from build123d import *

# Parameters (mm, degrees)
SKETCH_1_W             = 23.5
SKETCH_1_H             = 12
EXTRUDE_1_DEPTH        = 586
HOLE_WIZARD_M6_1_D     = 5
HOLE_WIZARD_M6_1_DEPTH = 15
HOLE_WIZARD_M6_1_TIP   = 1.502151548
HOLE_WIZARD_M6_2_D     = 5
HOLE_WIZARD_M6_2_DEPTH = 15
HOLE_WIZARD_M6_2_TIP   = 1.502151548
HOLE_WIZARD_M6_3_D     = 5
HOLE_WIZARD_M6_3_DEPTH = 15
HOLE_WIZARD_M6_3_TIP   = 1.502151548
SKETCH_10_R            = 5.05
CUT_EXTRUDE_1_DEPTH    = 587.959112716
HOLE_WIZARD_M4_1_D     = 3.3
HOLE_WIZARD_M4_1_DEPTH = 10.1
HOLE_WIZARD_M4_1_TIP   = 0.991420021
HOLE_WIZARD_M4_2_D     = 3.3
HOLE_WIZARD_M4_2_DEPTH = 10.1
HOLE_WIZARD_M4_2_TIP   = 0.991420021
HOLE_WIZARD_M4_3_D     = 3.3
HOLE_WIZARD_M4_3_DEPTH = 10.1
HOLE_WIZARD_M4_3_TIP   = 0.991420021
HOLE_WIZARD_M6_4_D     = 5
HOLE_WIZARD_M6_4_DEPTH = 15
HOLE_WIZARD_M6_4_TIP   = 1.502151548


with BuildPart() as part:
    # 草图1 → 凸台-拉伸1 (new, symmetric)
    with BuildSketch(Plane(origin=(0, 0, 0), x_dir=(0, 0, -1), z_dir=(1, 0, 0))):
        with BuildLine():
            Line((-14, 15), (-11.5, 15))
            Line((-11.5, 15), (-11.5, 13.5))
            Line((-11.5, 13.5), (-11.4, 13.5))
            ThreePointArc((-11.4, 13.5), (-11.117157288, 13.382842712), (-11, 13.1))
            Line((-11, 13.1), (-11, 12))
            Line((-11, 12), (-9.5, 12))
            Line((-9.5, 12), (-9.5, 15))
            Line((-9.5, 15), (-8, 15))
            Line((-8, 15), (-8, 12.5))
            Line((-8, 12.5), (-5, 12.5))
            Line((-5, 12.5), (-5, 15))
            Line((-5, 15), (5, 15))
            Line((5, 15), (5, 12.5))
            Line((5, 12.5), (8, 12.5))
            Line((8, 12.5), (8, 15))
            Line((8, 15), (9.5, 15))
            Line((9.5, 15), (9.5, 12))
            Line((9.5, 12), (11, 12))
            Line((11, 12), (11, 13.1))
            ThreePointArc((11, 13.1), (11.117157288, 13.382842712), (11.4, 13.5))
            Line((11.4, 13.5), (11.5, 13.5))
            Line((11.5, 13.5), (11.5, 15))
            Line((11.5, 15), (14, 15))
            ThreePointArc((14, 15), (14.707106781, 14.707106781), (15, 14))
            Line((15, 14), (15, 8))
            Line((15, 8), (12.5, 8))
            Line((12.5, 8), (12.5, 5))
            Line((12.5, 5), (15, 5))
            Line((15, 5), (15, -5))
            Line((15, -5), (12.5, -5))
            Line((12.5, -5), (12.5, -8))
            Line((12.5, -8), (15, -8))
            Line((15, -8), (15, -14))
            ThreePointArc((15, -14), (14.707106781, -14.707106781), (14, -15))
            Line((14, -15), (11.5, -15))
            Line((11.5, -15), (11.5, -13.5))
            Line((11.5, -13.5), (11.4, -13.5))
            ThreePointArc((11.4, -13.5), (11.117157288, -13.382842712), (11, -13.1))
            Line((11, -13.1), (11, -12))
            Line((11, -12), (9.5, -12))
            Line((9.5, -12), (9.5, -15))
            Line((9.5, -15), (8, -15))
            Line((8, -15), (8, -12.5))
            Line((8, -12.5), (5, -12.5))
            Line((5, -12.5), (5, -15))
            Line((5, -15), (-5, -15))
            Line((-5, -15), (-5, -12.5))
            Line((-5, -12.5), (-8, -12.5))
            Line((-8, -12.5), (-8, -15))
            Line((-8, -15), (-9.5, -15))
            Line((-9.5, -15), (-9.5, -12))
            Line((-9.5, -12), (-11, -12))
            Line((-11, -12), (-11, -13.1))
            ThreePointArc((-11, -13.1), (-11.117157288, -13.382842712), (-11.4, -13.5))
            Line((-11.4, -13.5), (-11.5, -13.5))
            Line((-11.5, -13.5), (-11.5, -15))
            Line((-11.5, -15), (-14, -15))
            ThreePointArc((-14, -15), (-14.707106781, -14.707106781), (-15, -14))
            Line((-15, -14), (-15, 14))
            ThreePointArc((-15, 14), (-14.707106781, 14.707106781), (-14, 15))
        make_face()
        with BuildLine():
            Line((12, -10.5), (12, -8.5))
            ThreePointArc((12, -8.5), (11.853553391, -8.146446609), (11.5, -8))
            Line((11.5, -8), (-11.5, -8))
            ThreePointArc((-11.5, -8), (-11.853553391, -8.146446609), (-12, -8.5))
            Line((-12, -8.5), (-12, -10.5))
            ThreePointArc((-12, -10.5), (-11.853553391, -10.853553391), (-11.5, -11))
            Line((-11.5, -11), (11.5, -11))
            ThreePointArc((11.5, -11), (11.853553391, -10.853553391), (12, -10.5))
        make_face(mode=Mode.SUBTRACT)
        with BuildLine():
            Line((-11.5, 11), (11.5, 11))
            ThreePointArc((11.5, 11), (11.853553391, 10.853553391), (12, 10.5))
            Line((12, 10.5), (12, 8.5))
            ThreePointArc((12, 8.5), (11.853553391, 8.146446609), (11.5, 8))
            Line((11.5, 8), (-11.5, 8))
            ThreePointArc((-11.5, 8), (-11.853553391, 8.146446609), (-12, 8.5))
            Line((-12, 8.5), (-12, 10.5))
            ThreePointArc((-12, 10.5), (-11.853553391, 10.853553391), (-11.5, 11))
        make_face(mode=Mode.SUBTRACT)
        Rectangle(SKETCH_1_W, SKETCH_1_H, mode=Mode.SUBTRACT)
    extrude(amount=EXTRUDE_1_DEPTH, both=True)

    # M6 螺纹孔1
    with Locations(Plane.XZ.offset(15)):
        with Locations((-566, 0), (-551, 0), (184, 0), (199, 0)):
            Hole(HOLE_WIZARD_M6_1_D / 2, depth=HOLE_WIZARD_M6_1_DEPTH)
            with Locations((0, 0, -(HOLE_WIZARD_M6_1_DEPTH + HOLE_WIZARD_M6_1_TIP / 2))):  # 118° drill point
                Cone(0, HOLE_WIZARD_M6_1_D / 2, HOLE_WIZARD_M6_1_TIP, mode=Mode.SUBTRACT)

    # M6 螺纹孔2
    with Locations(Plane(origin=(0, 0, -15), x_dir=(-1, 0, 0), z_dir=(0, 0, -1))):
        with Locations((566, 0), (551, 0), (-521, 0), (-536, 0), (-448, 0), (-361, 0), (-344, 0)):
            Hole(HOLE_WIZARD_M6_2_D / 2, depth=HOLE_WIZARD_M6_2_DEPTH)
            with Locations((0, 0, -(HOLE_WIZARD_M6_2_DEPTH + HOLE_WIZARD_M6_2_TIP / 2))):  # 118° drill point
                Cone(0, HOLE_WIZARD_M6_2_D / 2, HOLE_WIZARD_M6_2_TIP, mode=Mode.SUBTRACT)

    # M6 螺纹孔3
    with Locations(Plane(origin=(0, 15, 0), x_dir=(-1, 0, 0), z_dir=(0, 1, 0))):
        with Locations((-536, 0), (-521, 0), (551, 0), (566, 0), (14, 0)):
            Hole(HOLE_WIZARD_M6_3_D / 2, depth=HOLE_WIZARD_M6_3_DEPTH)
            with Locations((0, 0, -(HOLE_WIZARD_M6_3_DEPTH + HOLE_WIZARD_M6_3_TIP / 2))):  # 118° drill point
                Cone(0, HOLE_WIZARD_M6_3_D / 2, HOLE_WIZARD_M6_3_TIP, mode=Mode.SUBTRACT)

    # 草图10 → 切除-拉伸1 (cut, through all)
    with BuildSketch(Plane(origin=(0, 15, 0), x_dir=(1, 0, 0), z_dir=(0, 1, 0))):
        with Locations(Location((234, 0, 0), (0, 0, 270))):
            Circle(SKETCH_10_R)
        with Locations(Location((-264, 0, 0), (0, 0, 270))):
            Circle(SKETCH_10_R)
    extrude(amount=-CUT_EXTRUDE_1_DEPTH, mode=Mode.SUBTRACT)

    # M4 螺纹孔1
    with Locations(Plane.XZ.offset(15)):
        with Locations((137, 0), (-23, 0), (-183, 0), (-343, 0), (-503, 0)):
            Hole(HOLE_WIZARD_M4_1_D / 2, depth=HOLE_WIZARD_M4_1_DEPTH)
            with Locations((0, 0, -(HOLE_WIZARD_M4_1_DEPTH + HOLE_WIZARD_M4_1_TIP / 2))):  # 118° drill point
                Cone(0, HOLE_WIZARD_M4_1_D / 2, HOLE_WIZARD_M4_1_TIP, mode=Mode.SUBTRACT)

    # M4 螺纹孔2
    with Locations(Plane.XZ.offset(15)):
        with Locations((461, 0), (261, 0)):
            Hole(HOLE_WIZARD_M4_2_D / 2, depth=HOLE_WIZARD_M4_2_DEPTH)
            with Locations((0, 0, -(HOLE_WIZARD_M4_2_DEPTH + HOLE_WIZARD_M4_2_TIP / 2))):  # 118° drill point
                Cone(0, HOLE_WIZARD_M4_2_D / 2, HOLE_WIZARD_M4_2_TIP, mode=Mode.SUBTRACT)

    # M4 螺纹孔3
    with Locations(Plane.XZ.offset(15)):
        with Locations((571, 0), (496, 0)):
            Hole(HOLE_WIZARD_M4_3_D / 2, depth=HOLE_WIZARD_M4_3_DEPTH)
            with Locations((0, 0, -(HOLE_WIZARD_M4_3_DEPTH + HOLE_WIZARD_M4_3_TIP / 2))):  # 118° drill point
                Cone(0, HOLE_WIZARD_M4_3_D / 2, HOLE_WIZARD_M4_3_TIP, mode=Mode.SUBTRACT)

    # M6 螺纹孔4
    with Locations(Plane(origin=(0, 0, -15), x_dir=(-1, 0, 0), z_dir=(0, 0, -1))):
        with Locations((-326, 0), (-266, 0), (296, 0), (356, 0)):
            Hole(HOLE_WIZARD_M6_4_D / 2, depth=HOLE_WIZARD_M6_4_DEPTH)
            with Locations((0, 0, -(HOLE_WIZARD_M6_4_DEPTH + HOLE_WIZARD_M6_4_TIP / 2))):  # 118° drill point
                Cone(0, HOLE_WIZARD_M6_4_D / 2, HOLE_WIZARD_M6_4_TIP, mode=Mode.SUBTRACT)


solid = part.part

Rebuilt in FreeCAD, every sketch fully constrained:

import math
import FreeCAD as App
import Part
import Sketcher
from FreeCAD import Vector
Q = App.Units.Quantity


def add_polygon(sketch, points):
    """Adds a closed chain of lines whose ends are joined by coincident constraints."""
    first, n = sketch.GeometryCount, len(points)
    for a, b in zip(points, points[1:] + points[:1]):
        sketch.addGeometry(Part.LineSegment(App.Vector(*a, 0), App.Vector(*b, 0)), False)
    for i in range(n):
        sketch.addConstraint(Sketcher.Constraint("Coincident", first + i, 2, first + (i + 1) % n, 1))

doc = App.newDocument("Part")
body = doc.addObject("PartDesign::Body", "Body")

# Sketch on YZ plane
sketch1 = doc.addObject("Sketcher::SketchObject", "Sketch")
body.addObject(sketch1)
sketch1.AttachmentSupport = (doc.YZ_Plane, [""])
sketch1.MapMode = "FlatFace"
sketch1.addGeometry(Part.LineSegment(Vector(15, 11.5, 0), Vector(15, 14, 0)), False)  # 0
sketch1.addGeometry(Part.ArcOfCircle(Part.Circle(Vector(14, 14, 0), Vector(0, 0, 1), 1), math.radians(0), math.radians(90)), False)  # 1
sketch1.addGeometry(Part.LineSegment(Vector(14, 15, 0), Vector(-14, 15, 0)), False)  # 2
sketch1.addGeometry(Part.ArcOfCircle(Part.Circle(Vector(-14, 14, 0), Vector(0, 0, 1), 1), math.radians(90), math.radians(180)), False)  # 3
sketch1.addGeometry(Part.LineSegment(Vector(-15, 14, 0), Vector(-15, 11.5, 0)), False)  # 4
sketch1.addGeometry(Part.LineSegment(Vector(-15, 11.5, 0), Vector(-13.5, 11.5, 0)), False)  # 5
sketch1.addGeometry(Part.LineSegment(Vector(-13.5, 11.5, 0), Vector(-13.5, 11.4, 0)), False)  # 6
sketch1.addGeometry(Part.ArcOfCircle(Part.Circle(Vector(-13.1, 11.4, 0), Vector(0, 0, 1), 0.4), math.radians(-180), math.radians(-90)), False)  # 7
sketch1.addGeometry(Part.LineSegment(Vector(-13.1, 11, 0), Vector(-12, 11, 0)), False)  # 8
sketch1.addGeometry(Part.LineSegment(Vector(-12, 11, 0), Vector(-12, 9.5, 0)), False)  # 9
sketch1.addGeometry(Part.LineSegment(Vector(-12, 9.5, 0), Vector(-15, 9.5, 0)), False)  # 10
sketch1.addGeometry(Part.LineSegment(Vector(-15, 9.5, 0), Vector(-15, 8, 0)), False)  # 11
sketch1.addGeometry(Part.LineSegment(Vector(-15, 8, 0), Vector(-12.5, 8, 0)), False)  # 12
sketch1.addGeometry(Part.LineSegment(Vector(-12.5, 8, 0), Vector(-12.5, 5, 0)), False)  # 13
sketch1.addGeometry(Part.LineSegment(Vector(-12.5, 5, 0), Vector(-15, 5, 0)), False)  # 14
sketch1.addGeometry(Part.LineSegment(Vector(-15, 5, 0), Vector(-15, -5, 0)), False)  # 15
sketch1.addGeometry(Part.LineSegment(Vector(-15, -5, 0), Vector(-12.5, -5, 0)), False)  # 16
sketch1.addGeometry(Part.LineSegment(Vector(-12.5, -5, 0), Vector(-12.5, -8, 0)), False)  # 17
sketch1.addGeometry(Part.LineSegment(Vector(-12.5, -8, 0), Vector(-15, -8, 0)), False)  # 18
sketch1.addGeometry(Part.LineSegment(Vector(-15, -8, 0), Vector(-15, -9.5, 0)), False)  # 19
sketch1.addGeometry(Part.LineSegment(Vector(-15, -9.5, 0), Vector(-12, -9.5, 0)), False)  # 20
sketch1.addGeometry(Part.LineSegment(Vector(-12, -9.5, 0), Vector(-12, -11, 0)), False)  # 21
sketch1.addGeometry(Part.LineSegment(Vector(-12, -11, 0), Vector(-13.1, -11, 0)), False)  # 22
sketch1.addGeometry(Part.ArcOfCircle(Part.Circle(Vector(-13.1, -11.4, 0), Vector(0, 0, 1), 0.4), math.radians(90), math.radians(180)), False)  # 23
sketch1.addGeometry(Part.LineSegment(Vector(-13.5, -11.4, 0), Vector(-13.5, -11.5, 0)), False)  # 24
sketch1.addGeometry(Part.LineSegment(Vector(-13.5, -11.5, 0), Vector(-15, -11.5, 0)), False)  # 25
sketch1.addGeometry(Part.LineSegment(Vector(-15, -11.5, 0), Vector(-15, -14, 0)), False)  # 26
sketch1.addGeometry(Part.ArcOfCircle(Part.Circle(Vector(-14, -14, 0), Vector(0, 0, 1), 1), math.radians(-180), math.radians(-90)), False)  # 27
sketch1.addGeometry(Part.LineSegment(Vector(-14, -15, 0), Vector(-8, -15, 0)), False)  # 28
sketch1.addGeometry(Part.LineSegment(Vector(-8, -15, 0), Vector(-8, -12.5, 0)), False)  # 29
sketch1.addGeometry(Part.LineSegment(Vector(-8, -12.5, 0), Vector(-5, -12.5, 0)), False)  # 30
sketch1.addGeometry(Part.LineSegment(Vector(-5, -12.5, 0), Vector(-5, -15, 0)), False)  # 31
sketch1.addGeometry(Part.LineSegment(Vector(-5, -15, 0), Vector(5, -15, 0)), False)  # 32
sketch1.addGeometry(Part.LineSegment(Vector(5, -15, 0), Vector(5, -12.5, 0)), False)  # 33
sketch1.addGeometry(Part.LineSegment(Vector(5, -12.5, 0), Vector(8, -12.5, 0)), False)  # 34
sketch1.addGeometry(Part.LineSegment(Vector(8, -12.5, 0), Vector(8, -15, 0)), False)  # 35
sketch1.addGeometry(Part.LineSegment(Vector(8, -15, 0), Vector(14, -15, 0)), False)  # 36
sketch1.addGeometry(Part.ArcOfCircle(Part.Circle(Vector(14, -14, 0), Vector(0, 0, 1), 1), math.radians(-90), math.radians(0)), False)  # 37
sketch1.addGeometry(Part.LineSegment(Vector(15, -14, 0), Vector(15, -11.5, 0)), False)  # 38
sketch1.addGeometry(Part.LineSegment(Vector(15, -11.5, 0), Vector(13.5, -11.5, 0)), False)  # 39
sketch1.addGeometry(Part.LineSegment(Vector(13.5, -11.5, 0), Vector(13.5, -11.4, 0)), False)  # 40
sketch1.addGeometry(Part.ArcOfCircle(Part.Circle(Vector(13.1, -11.4, 0), Vector(0, 0, 1), 0.4), math.radians(0), math.radians(90)), False)  # 41
sketch1.addGeometry(Part.LineSegment(Vector(13.1, -11, 0), Vector(12, -11, 0)), False)  # 42
sketch1.addGeometry(Part.LineSegment(Vector(12, -11, 0), Vector(12, -9.5, 0)), False)  # 43
sketch1.addGeometry(Part.LineSegment(Vector(12, -9.5, 0), Vector(15, -9.5, 0)), False)  # 44
sketch1.addGeometry(Part.LineSegment(Vector(15, -9.5, 0), Vector(15, -8, 0)), False)  # 45
sketch1.addGeometry(Part.LineSegment(Vector(15, -8, 0), Vector(12.5, -8, 0)), False)  # 46
sketch1.addGeometry(Part.LineSegment(Vector(12.5, -8, 0), Vector(12.5, -5, 0)), False)  # 47
sketch1.addGeometry(Part.LineSegment(Vector(12.5, -5, 0), Vector(15, -5, 0)), False)  # 48
sketch1.addGeometry(Part.LineSegment(Vector(15, -5, 0), Vector(15, 5, 0)), False)  # 49
sketch1.addGeometry(Part.LineSegment(Vector(15, 5, 0), Vector(12.5, 5, 0)), False)  # 50
sketch1.addGeometry(Part.LineSegment(Vector(12.5, 5, 0), Vector(12.5, 8, 0)), False)  # 51
sketch1.addGeometry(Part.LineSegment(Vector(12.5, 8, 0), Vector(15, 8, 0)), False)  # 52
sketch1.addGeometry(Part.LineSegment(Vector(15, 8, 0), Vector(15, 9.5, 0)), False)  # 53
sketch1.addGeometry(Part.LineSegment(Vector(15, 9.5, 0), Vector(12, 9.5, 0)), False)  # 54
sketch1.addGeometry(Part.LineSegment(Vector(12, 9.5, 0), Vector(12, 11, 0)), False)  # 55
sketch1.addGeometry(Part.LineSegment(Vector(12, 11, 0), Vector(13.1, 11, 0)), False)  # 56
sketch1.addGeometry(Part.ArcOfCircle(Part.Circle(Vector(13.1, 11.4, 0), Vector(0, 0, 1), 0.4), math.radians(-90), math.radians(0)), False)  # 57
sketch1.addGeometry(Part.LineSegment(Vector(13.5, 11.4, 0), Vector(13.5, 11.5, 0)), False)  # 58
sketch1.addGeometry(Part.LineSegment(Vector(13.5, 11.5, 0), Vector(15, 11.5, 0)), False)  # 59
sketch1.addGeometry(Part.ArcOfCircle(Part.Circle(Vector(-10.5, -11.5, 0), Vector(0, 0, 1), 0.5), math.radians(180), math.radians(270)), False)  # 60
sketch1.addGeometry(Part.LineSegment(Vector(-11, -11.5, 0), Vector(-11, 11.5, 0)), False)  # 61
sketch1.addGeometry(Part.ArcOfCircle(Part.Circle(Vector(-10.5, 11.5, 0), Vector(0, 0, 1), 0.5), math.radians(90), math.radians(180)), False)  # 62
sketch1.addGeometry(Part.LineSegment(Vector(-10.5, 12, 0), Vector(-8.5, 12, 0)), False)  # 63
sketch1.addGeometry(Part.ArcOfCircle(Part.Circle(Vector(-8.5, 11.5, 0), Vector(0, 0, 1), 0.5), math.radians(0), math.radians(90)), False)  # 64
sketch1.addGeometry(Part.LineSegment(Vector(-8, 11.5, 0), Vector(-8, -11.5, 0)), False)  # 65
sketch1.addGeometry(Part.ArcOfCircle(Part.Circle(Vector(-8.5, -11.5, 0), Vector(0, 0, 1), 0.5), math.radians(-90), math.radians(0)), False)  # 66
sketch1.addGeometry(Part.LineSegment(Vector(-8.5, -12, 0), Vector(-10.5, -12, 0)), False)  # 67
add_polygon(sketch1, [(-6, 11.75), (6, 11.75), (6, -11.75), (-6, -11.75)])  # lines 68-71
sketch1.addGeometry(Part.LineSegment(Vector(11, 11.5, 0), Vector(11, -11.5, 0)), False)  # 72
sketch1.addGeometry(Part.ArcOfCircle(Part.Circle(Vector(10.5, -11.5, 0), Vector(0, 0, 1), 0.5), math.radians(-90), math.radians(0)), False)  # 73
sketch1.addGeometry(Part.LineSegment(Vector(10.5, -12, 0), Vector(8.5, -12, 0)), False)  # 74
sketch1.addGeometry(Part.ArcOfCircle(Part.Circle(Vector(8.5, -11.5, 0), Vector(0, 0, 1), 0.5), math.radians(180), math.radians(270)), False)  # 75
sketch1.addGeometry(Part.LineSegment(Vector(8, -11.5, 0), Vector(8, 11.5, 0)), False)  # 76
sketch1.addGeometry(Part.ArcOfCircle(Part.Circle(Vector(8.5, 11.5, 0), Vector(0, 0, 1), 0.5), math.radians(90), math.radians(180)), False)  # 77
sketch1.addGeometry(Part.LineSegment(Vector(8.5, 12, 0), Vector(10.5, 12, 0)), False)  # 78
sketch1.addGeometry(Part.ArcOfCircle(Part.Circle(Vector(10.5, 11.5, 0), Vector(0, 0, 1), 0.5), math.radians(0), math.radians(90)), False)  # 79
sketch1.addConstraint([
    Sketcher.Constraint("Tangent", 0, 2, 1, 1),
    Sketcher.Constraint("Tangent", 1, 2, 2, 1),
    Sketcher.Constraint("Tangent", 2, 2, 3, 1),
    Sketcher.Constraint("Tangent", 3, 2, 4, 1),
    Sketcher.Constraint("Coincident", 4, 2, 5, 1),
    Sketcher.Constraint("Coincident", 5, 2, 6, 1),
    Sketcher.Constraint("Tangent", 6, 2, 7, 1),
    Sketcher.Constraint("Tangent", 7, 2, 8, 1),
    Sketcher.Constraint("Coincident", 8, 2, 9, 1),
    Sketcher.Constraint("Coincident", 9, 2, 10, 1),
    Sketcher.Constraint("Coincident", 10, 2, 11, 1),
    Sketcher.Constraint("Coincident", 11, 2, 12, 1),
    Sketcher.Constraint("Coincident", 12, 2, 13, 1),
    Sketcher.Constraint("Coincident", 13, 2, 14, 1),
    Sketcher.Constraint("Coincident", 14, 2, 15, 1),
    Sketcher.Constraint("Coincident", 15, 2, 16, 1),
    Sketcher.Constraint("Coincident", 16, 2, 17, 1),
    Sketcher.Constraint("Coincident", 17, 2, 18, 1),
    Sketcher.Constraint("Coincident", 18, 2, 19, 1),
    Sketcher.Constraint("Coincident", 19, 2, 20, 1),
    Sketcher.Constraint("Coincident", 20, 2, 21, 1),
    Sketcher.Constraint("Coincident", 21, 2, 22, 1),
    Sketcher.Constraint("Tangent", 22, 2, 23, 1),
    Sketcher.Constraint("Tangent", 23, 2, 24, 1),
    Sketcher.Constraint("Coincident", 24, 2, 25, 1),
    Sketcher.Constraint("Coincident", 25, 2, 26, 1),
    Sketcher.Constraint("Tangent", 26, 2, 27, 1),
    Sketcher.Constraint("Tangent", 27, 2, 28, 1),
    Sketcher.Constraint("Coincident", 28, 2, 29, 1),
    Sketcher.Constraint("Coincident", 29, 2, 30, 1),
    Sketcher.Constraint("Coincident", 30, 2, 31, 1),
    Sketcher.Constraint("Coincident", 31, 2, 32, 1),
    Sketcher.Constraint("Coincident", 32, 2, 33, 1),
    Sketcher.Constraint("Coincident", 33, 2, 34, 1),
    Sketcher.Constraint("Coincident", 34, 2, 35, 1),
    Sketcher.Constraint("Coincident", 35, 2, 36, 1),
    Sketcher.Constraint("Tangent", 36, 2, 37, 1),
    Sketcher.Constraint("Tangent", 37, 2, 38, 1),
    Sketcher.Constraint("Coincident", 38, 2, 39, 1),
    Sketcher.Constraint("Coincident", 39, 2, 40, 1),
    Sketcher.Constraint("Tangent", 40, 2, 41, 1),
    Sketcher.Constraint("Tangent", 41, 2, 42, 1),
    Sketcher.Constraint("Coincident", 42, 2, 43, 1),
    Sketcher.Constraint("Coincident", 43, 2, 44, 1),
    Sketcher.Constraint("Coincident", 44, 2, 45, 1),
    Sketcher.Constraint("Coincident", 45, 2, 46, 1),
    Sketcher.Constraint("Coincident", 46, 2, 47, 1),
    Sketcher.Constraint("Coincident", 47, 2, 48, 1),
    Sketcher.Constraint("Coincident", 48, 2, 49, 1),
    Sketcher.Constraint("Coincident", 49, 2, 50, 1),
    Sketcher.Constraint("Coincident", 50, 2, 51, 1),
    Sketcher.Constraint("Coincident", 51, 2, 52, 1),
    Sketcher.Constraint("Coincident", 52, 2, 53, 1),
    Sketcher.Constraint("Coincident", 53, 2, 54, 1),
    Sketcher.Constraint("Coincident", 54, 2, 55, 1),
    Sketcher.Constraint("Coincident", 55, 2, 56, 1),
    Sketcher.Constraint("Tangent", 56, 2, 57, 1),
    Sketcher.Constraint("Tangent", 57, 2, 58, 1),
    Sketcher.Constraint("Coincident", 58, 2, 59, 1),
    Sketcher.Constraint("Coincident", 59, 2, 0, 1),
    Sketcher.Constraint("Tangent", 60, 1, 61, 1),
    Sketcher.Constraint("Tangent", 61, 2, 62, 2),
    Sketcher.Constraint("Tangent", 62, 1, 63, 1),
    Sketcher.Constraint("Tangent", 63, 2, 64, 2),
    Sketcher.Constraint("Tangent", 64, 1, 65, 1),
    Sketcher.Constraint("Tangent", 65, 2, 66, 2),
    Sketcher.Constraint("Tangent", 66, 1, 67, 1),
    Sketcher.Constraint("Tangent", 67, 2, 60, 2),
    Sketcher.Constraint("Tangent", 72, 2, 73, 2),
    Sketcher.Constraint("Tangent", 73, 1, 74, 1),
    Sketcher.Constraint("Tangent", 74, 2, 75, 2),
    Sketcher.Constraint("Tangent", 75, 1, 76, 1),
    Sketcher.Constraint("Tangent", 76, 2, 77, 2),
    Sketcher.Constraint("Tangent", 77, 1, 78, 1),
    Sketcher.Constraint("Tangent", 78, 2, 79, 2),
    Sketcher.Constraint("Tangent", 79, 1, 72, 1),
    Sketcher.Constraint("Vertical", 0),
    Sketcher.Constraint("Horizontal", 2),
    Sketcher.Constraint("Vertical", 4),
    Sketcher.Constraint("Horizontal", 5),
    Sketcher.Constraint("Vertical", 6),
    Sketcher.Constraint("Horizontal", 8),
    Sketcher.Constraint("Vertical", 9),
    Sketcher.Constraint("Horizontal", 10),
    Sketcher.Constraint("Vertical", 11),
    Sketcher.Constraint("Horizontal", 12),
    Sketcher.Constraint("Vertical", 13),
    Sketcher.Constraint("Horizontal", 14),
    Sketcher.Constraint("Vertical", 15),
    Sketcher.Constraint("Horizontal", 16),
    Sketcher.Constraint("Vertical", 17),
    Sketcher.Constraint("Horizontal", 18),
    Sketcher.Constraint("Vertical", 19),
    Sketcher.Constraint("Horizontal", 20),
    Sketcher.Constraint("Vertical", 21),
    Sketcher.Constraint("Horizontal", 22),
    Sketcher.Constraint("Vertical", 24),
    Sketcher.Constraint("Horizontal", 25),
    Sketcher.Constraint("Vertical", 26),
    Sketcher.Constraint("Horizontal", 28),
    Sketcher.Constraint("Vertical", 29),
    Sketcher.Constraint("Horizontal", 30),
    Sketcher.Constraint("Vertical", 31),
    Sketcher.Constraint("Horizontal", 32),
    Sketcher.Constraint("Vertical", 33),
    Sketcher.Constraint("Horizontal", 34),
    Sketcher.Constraint("Vertical", 35),
    Sketcher.Constraint("Horizontal", 36),
    Sketcher.Constraint("Vertical", 38),
    Sketcher.Constraint("Horizontal", 39),
    Sketcher.Constraint("Vertical", 40),
    Sketcher.Constraint("Horizontal", 42),
    Sketcher.Constraint("Vertical", 43),
    Sketcher.Constraint("Horizontal", 44),
    Sketcher.Constraint("Vertical", 45),
    Sketcher.Constraint("Horizontal", 46),
    Sketcher.Constraint("Vertical", 47),
    Sketcher.Constraint("Horizontal", 48),
    Sketcher.Constraint("Vertical", 49),
    Sketcher.Constraint("Horizontal", 50),
    Sketcher.Constraint("Vertical", 51),
    Sketcher.Constraint("Horizontal", 52),
    Sketcher.Constraint("Vertical", 53),
    Sketcher.Constraint("Horizontal", 54),
    Sketcher.Constraint("Vertical", 55),
    Sketcher.Constraint("Horizontal", 56),
    Sketcher.Constraint("Vertical", 58),
    Sketcher.Constraint("Horizontal", 59),
    Sketcher.Constraint("Vertical", 61),
    Sketcher.Constraint("Horizontal", 63),
    Sketcher.Constraint("Vertical", 65),
    Sketcher.Constraint("Horizontal", 67),
    Sketcher.Constraint("Horizontal", 68),
    Sketcher.Constraint("Vertical", 69),
    Sketcher.Constraint("Horizontal", 70),
    Sketcher.Constraint("Vertical", 71),
    Sketcher.Constraint("Vertical", 72),
    Sketcher.Constraint("Horizontal", 74),
    Sketcher.Constraint("Vertical", 76),
    Sketcher.Constraint("Horizontal", 78),
    Sketcher.Constraint("Equal", 1, 3),
    Sketcher.Constraint("Equal", 7, 23),
    Sketcher.Constraint("Equal", 3, 27),
    Sketcher.Constraint("Equal", 27, 37),
    Sketcher.Constraint("Equal", 23, 41),
    Sketcher.Constraint("Equal", 41, 57),
    Sketcher.Constraint("Equal", 60, 62),
    Sketcher.Constraint("Equal", 62, 64),
    Sketcher.Constraint("Equal", 64, 66),
    Sketcher.Constraint("Equal", 66, 73),
    Sketcher.Constraint("Equal", 73, 75),
    Sketcher.Constraint("Equal", 75, 77),
    Sketcher.Constraint("Equal", 77, 79),
    Sketcher.Constraint("Symmetric", 1, 3, 27, 3, -1, 1),
    Sketcher.Constraint("Symmetric", 3, 3, 37, 3, -1, 1),
    Sketcher.Constraint("Symmetric", 7, 3, 41, 3, -1, 1),
    Sketcher.Constraint("Symmetric", 23, 3, 57, 3, -1, 1),
    Sketcher.Constraint("Symmetric", 62, 3, 73, 3, -1, 1),
    Sketcher.Constraint("Symmetric", 66, 3, 77, 3, -1, 1),
    Sketcher.Constraint("Symmetric", 9, 2, 43, 2, -1, 1),
    Sketcher.Constraint("Symmetric", 11, 2, 45, 2, -1, 1),
    Sketcher.Constraint("Symmetric", 13, 2, 47, 2, -1, 1),
    Sketcher.Constraint("Symmetric", 15, 2, 49, 2, -1, 1),
    Sketcher.Constraint("Symmetric", 17, 2, 51, 2, -1, 1),
    Sketcher.Constraint("Symmetric", 19, 2, 53, 2, -1, 1),
    Sketcher.Constraint("Symmetric", 68, 2, 70, 2, -1, 1),
    Sketcher.Constraint("Symmetric", 23, 3, 41, 3, -2),
    Sketcher.Constraint("Symmetric", 30, 2, 33, 2, -2),
    Sketcher.Constraint("Symmetric", 25, 2, 38, 2, -2),
    Sketcher.Constraint("Symmetric", 20, 2, 43, 2, -2),
    Sketcher.Constraint("Symmetric", 18, 2, 45, 2, -2),
    Sketcher.Constraint("Symmetric", 16, 2, 47, 2, -2),
    Sketcher.Constraint("Horizontal", 66, 3, 73, 3),
    Sketcher.Constraint("Horizontal", 79, 3, 4, 2),
    Sketcher.Constraint("Horizontal", 75, 3, 24, 2),
    Sketcher.Constraint("Horizontal", 28, 2, 31, 2),
    Sketcher.Constraint("Horizontal", 5, 2, 58, 2),
    Sketcher.Constraint("Vertical", 4, 2, 10, 2),
    Sketcher.Constraint("Vertical", 11, 2, 14, 2),
    Sketcher.Constraint("Vertical", 43, 2, 54, 2),
    Sketcher.Constraint("Vertical", 29, 2, 64, 1),
    Sketcher.Constraint("Vertical", 35, 2, 75, 1),
    Sketcher.Constraint("Equal", 20, 30),
    Sketcher.Constraint("Equal", 52, 0),
    Sketcher.Constraint("Equal", 59, 9),
    Sketcher.Constraint("Equal", 9, 11),
    Sketcher.Constraint("Equal", 54, 13),
    Sketcher.Constraint("Equal", 32, 15),
    Sketcher.Constraint("Equal", 26, 29),
    Sketcher.Constraint("Radius", 1, Q("1 mm")),
    Sketcher.Constraint("Radius", 7, Q("0.4 mm")),
    Sketcher.Constraint("Radius", 60, Q("0.5 mm")),
    Sketcher.Constraint("DistanceX", 2, 2, 2, 1, Q("28 mm")),
    Sketcher.Constraint("DistanceX", 10, 2, 10, 1, Q("3 mm")),
    Sketcher.Constraint("DistanceX", 28, 1, 28, 2, Q("6 mm")),
    Sketcher.Constraint("DistanceX", 63, 1, 63, 2, Q("2 mm")),
    Sketcher.Constraint("DistanceX", 68, 1, 68, 2, Q("12 mm")),
    Sketcher.Constraint("DistanceY", 61, 1, 61, 2, Q("23 mm")),
    Sketcher.Constraint("DistanceX", 5, 1, 5, 2, Q("1.5 mm")),
    Sketcher.Constraint("DistanceX", 12, 1, 12, 2, Q("2.5 mm")),
    Sketcher.Constraint("DistanceY", 69, 2, 69, 1, Q("23.5 mm")),
])
pad1 = doc.addObject("PartDesign::Pad", "Pad")
body.addObject(pad1)
pad1.Profile = sketch1
pad1.Length = 1172
pad1.Midplane = True

# Sketch on XZ plane
sketch2 = doc.addObject("Sketcher::SketchObject", "Sketch001")
body.addObject(sketch2)
sketch2.AttachmentSupport = (doc.XZ_Plane, [""])
sketch2.MapMode = "FlatFace"
sketch2.AttachmentOffset = App.Placement(Vector(0, 0, 15), App.Rotation())
sketch2.addGeometry([
    Part.Circle(Vector(-566, 0, 0), Vector(0, 0, 1), 2.5),
    Part.Circle(Vector(-551, 0, 0), Vector(0, 0, 1), 2.5),
    Part.Circle(Vector(184, 0, 0), Vector(0, 0, 1), 2.5),
    Part.Circle(Vector(199, 0, 0), Vector(0, 0, 1), 2.5),
], False)
sketch2.addConstraint([
    Sketcher.Constraint("Equal", 0, 1),
    Sketcher.Constraint("Equal", 1, 2),
    Sketcher.Constraint("Equal", 2, 3),
    Sketcher.Constraint("PointOnObject", 0, 3, -1),
    Sketcher.Constraint("PointOnObject", 1, 3, -1),
    Sketcher.Constraint("PointOnObject", 2, 3, -1),
    Sketcher.Constraint("PointOnObject", 3, 3, -1),
    Sketcher.Constraint("Diameter", 0, Q("5 mm")),
    Sketcher.Constraint("DistanceX", 0, 3, -1, 1, Q("566 mm")),
    Sketcher.Constraint("DistanceX", 1, 3, -1, 1, Q("551 mm")),
    Sketcher.Constraint("DistanceX", -1, 1, 2, 3, Q("184 mm")),
    Sketcher.Constraint("DistanceX", -1, 1, 3, 3, Q("199 mm")),
])
doc.recompute()
hole = doc.addObject("PartDesign::Hole", "Hole")
body.addObject(hole)
hole.Profile = sketch2
hole.ThreadType = "None"
hole.Diameter = 5
hole.DepthType = "Dimension"
hole.Depth = 15
hole.DrillPoint = "Angled"
hole.DrillPointAngle = 118

# Sketch on XY plane
sketch3 = doc.addObject("Sketcher::SketchObject", "Sketch002")
body.addObject(sketch3)
sketch3.AttachmentSupport = (doc.XY_Plane, [""])
sketch3.MapMode = "FlatFace"
sketch3.AttachmentOffset = App.Placement(Vector(0, 0, -15), App.Rotation())
sketch3.addGeometry([
    Part.Circle(Vector(-566, 0, 0), Vector(0, 0, 1), 2.5),  # 0
    Part.Circle(Vector(-551, 0, 0), Vector(0, 0, 1), 2.5),  # 1
    Part.Circle(Vector(521, 0, 0), Vector(0, 0, 1), 2.5),  # 2
    Part.Circle(Vector(536, 0, 0), Vector(0, 0, 1), 2.5),  # 3
    Part.Circle(Vector(448, 0, 0), Vector(0, 0, 1), 2.5),  # 4
    Part.Circle(Vector(361, 0, 0), Vector(0, 0, 1), 2.5),  # 5
    Part.Circle(Vector(344, 0, 0), Vector(0, 0, 1), 2.5),  # 6
], False)
sketch3.addConstraint([
    Sketcher.Constraint("Equal", 0, 1),
    Sketcher.Constraint("Equal", 1, 2),
    Sketcher.Constraint("Equal", 2, 3),
    Sketcher.Constraint("Equal", 3, 4),
    Sketcher.Constraint("Equal", 4, 5),
    Sketcher.Constraint("Equal", 5, 6),
    Sketcher.Constraint("PointOnObject", 0, 3, -1),
    Sketcher.Constraint("PointOnObject", 1, 3, -1),
    Sketcher.Constraint("PointOnObject", 2, 3, -1),
    Sketcher.Constraint("PointOnObject", 3, 3, -1),
    Sketcher.Constraint("PointOnObject", 4, 3, -1),
    Sketcher.Constraint("PointOnObject", 5, 3, -1),
    Sketcher.Constraint("PointOnObject", 6, 3, -1),
    Sketcher.Constraint("Diameter", 0, Q("5 mm")),
    Sketcher.Constraint("DistanceX", 0, 3, -1, 1, Q("566 mm")),
    Sketcher.Constraint("DistanceX", 1, 3, -1, 1, Q("551 mm")),
    Sketcher.Constraint("DistanceX", -1, 1, 2, 3, Q("521 mm")),
    Sketcher.Constraint("DistanceX", -1, 1, 3, 3, Q("536 mm")),
    Sketcher.Constraint("DistanceX", -1, 1, 4, 3, Q("448 mm")),
    Sketcher.Constraint("DistanceX", -1, 1, 5, 3, Q("361 mm")),
    Sketcher.Constraint("DistanceX", -1, 1, 6, 3, Q("344 mm")),
])
doc.recompute()
hole2 = doc.addObject("PartDesign::Hole", "Hole001")
body.addObject(hole2)
hole2.Profile = sketch3
hole2.ThreadType = "None"
hole2.Diameter = 5
hole2.DepthType = "Dimension"
hole2.Depth = 15
hole2.DrillPoint = "Angled"
hole2.DrillPointAngle = 118
hole2.Reversed = True

# Sketch on XZ plane
sketch4 = doc.addObject("Sketcher::SketchObject", "Sketch003")
body.addObject(sketch4)
sketch4.AttachmentSupport = (doc.XZ_Plane, [""])
sketch4.MapMode = "FlatFace"
sketch4.AttachmentOffset = App.Placement(Vector(0, 0, -15), App.Rotation())
sketch4.addGeometry([
    Part.Circle(Vector(536, 0, 0), Vector(0, 0, 1), 2.5),  # 0
    Part.Circle(Vector(521, 0, 0), Vector(0, 0, 1), 2.5),  # 1
    Part.Circle(Vector(-551, 0, 0), Vector(0, 0, 1), 2.5),  # 2
    Part.Circle(Vector(-566, 0, 0), Vector(0, 0, 1), 2.5),  # 3
    Part.Circle(Vector(-14, 0, 0), Vector(0, 0, 1), 2.5),  # 4
], False)
sketch4.addConstraint([
    Sketcher.Constraint("Equal", 0, 1),
    Sketcher.Constraint("Equal", 1, 2),
    Sketcher.Constraint("Equal", 2, 3),
    Sketcher.Constraint("Equal", 3, 4),
    Sketcher.Constraint("PointOnObject", 0, 3, -1),
    Sketcher.Constraint("PointOnObject", 1, 3, -1),
    Sketcher.Constraint("PointOnObject", 2, 3, -1),
    Sketcher.Constraint("PointOnObject", 3, 3, -1),
    Sketcher.Constraint("PointOnObject", 4, 3, -1),
    Sketcher.Constraint("Diameter", 0, Q("5 mm")),
    Sketcher.Constraint("DistanceX", -1, 1, 0, 3, Q("536 mm")),
    Sketcher.Constraint("DistanceX", -1, 1, 1, 3, Q("521 mm")),
    Sketcher.Constraint("DistanceX", 2, 3, -1, 1, Q("551 mm")),
    Sketcher.Constraint("DistanceX", 3, 3, -1, 1, Q("566 mm")),
    Sketcher.Constraint("DistanceX", 4, 3, -1, 1, Q("14 mm")),
])
doc.recompute()
hole3 = doc.addObject("PartDesign::Hole", "Hole002")
body.addObject(hole3)
hole3.Profile = sketch4
hole3.ThreadType = "None"
hole3.Diameter = 5
hole3.DepthType = "Dimension"
hole3.Depth = 15
hole3.DrillPoint = "Angled"
hole3.DrillPointAngle = 118
hole3.Reversed = True

# Sketch on XZ plane
sketch5 = doc.addObject("Sketcher::SketchObject", "Sketch004")
body.addObject(sketch5)
sketch5.AttachmentSupport = (doc.XZ_Plane, [""])
sketch5.MapMode = "FlatFace"
sketch5.AttachmentOffset = App.Placement(Vector(0, 0, -15), App.Rotation())
sketch5.addGeometry([
    Part.Circle(Vector(234, 0, 0), Vector(0, 0, 1), 5),
    Part.Circle(Vector(-264, 0, 0), Vector(0, 0, 1), 5),
], False)
sketch5.addConstraint([
    Sketcher.Constraint("Equal", 0, 1),
    Sketcher.Constraint("PointOnObject", 0, 3, -1),
    Sketcher.Constraint("PointOnObject", 1, 3, -1),
    Sketcher.Constraint("Diameter", 0, Q("10.1 mm")),
    Sketcher.Constraint("DistanceX", -1, 1, 0, 3, Q("234 mm")),
    Sketcher.Constraint("DistanceX", 1, 3, -1, 1, Q("264 mm")),
])
pocket1 = doc.addObject("PartDesign::Pocket", "Pocket")
body.addObject(pocket1)
pocket1.Profile = sketch5
pocket1.Type = "ThroughAll"
pocket1.Reversed = True

# Sketch on XZ plane
sketch6 = doc.addObject("Sketcher::SketchObject", "Sketch005")
body.addObject(sketch6)
sketch6.AttachmentSupport = (doc.XZ_Plane, [""])
sketch6.MapMode = "FlatFace"
sketch6.AttachmentOffset = App.Placement(Vector(0, 0, 15), App.Rotation())
sketch6.addGeometry([
    Part.Circle(Vector(137, 0, 0), Vector(0, 0, 1), 1.6),  # 0
    Part.Circle(Vector(-23, 0, 0), Vector(0, 0, 1), 1.6),  # 1
    Part.Circle(Vector(-183, 0, 0), Vector(0, 0, 1), 1.6),  # 2
    Part.Circle(Vector(-343, 0, 0), Vector(0, 0, 1), 1.6),  # 3
    Part.Circle(Vector(-503, 0, 0), Vector(0, 0, 1), 1.6),  # 4
], False)
sketch6.addConstraint([
    Sketcher.Constraint("Equal", 0, 1),
    Sketcher.Constraint("Equal", 1, 2),
    Sketcher.Constraint("Equal", 2, 3),
    Sketcher.Constraint("Equal", 3, 4),
    Sketcher.Constraint("PointOnObject", 0, 3, -1),
    Sketcher.Constraint("PointOnObject", 1, 3, -1),
    Sketcher.Constraint("PointOnObject", 2, 3, -1),
    Sketcher.Constraint("PointOnObject", 3, 3, -1),
    Sketcher.Constraint("PointOnObject", 4, 3, -1),
    Sketcher.Constraint("Diameter", 0, Q("3.3 mm")),
    Sketcher.Constraint("DistanceX", -1, 1, 0, 3, Q("137 mm")),
    Sketcher.Constraint("DistanceX", 1, 3, -1, 1, Q("23 mm")),
    Sketcher.Constraint("DistanceX", 2, 3, -1, 1, Q("183 mm")),
    Sketcher.Constraint("DistanceX", 3, 3, -1, 1, Q("343 mm")),
    Sketcher.Constraint("DistanceX", 4, 3, -1, 1, Q("503 mm")),
])
doc.recompute()
hole4 = doc.addObject("PartDesign::Hole", "Hole003")
body.addObject(hole4)
hole4.Profile = sketch6
hole4.ThreadType = "None"
hole4.Diameter = 3.3
hole4.DepthType = "Dimension"
hole4.Depth = 10.1
hole4.DrillPoint = "Angled"
hole4.DrillPointAngle = 118

# Sketch on XZ plane
sketch7 = doc.addObject("Sketcher::SketchObject", "Sketch006")
body.addObject(sketch7)
sketch7.AttachmentSupport = (doc.XZ_Plane, [""])
sketch7.MapMode = "FlatFace"
sketch7.AttachmentOffset = App.Placement(Vector(0, 0, 15), App.Rotation())
sketch7.addGeometry([
    Part.Circle(Vector(461, 0, 0), Vector(0, 0, 1), 1.6),
    Part.Circle(Vector(261, 0, 0), Vector(0, 0, 1), 1.6),
], False)
sketch7.addConstraint([
    Sketcher.Constraint("Equal", 0, 1),
    Sketcher.Constraint("PointOnObject", 0, 3, -1),
    Sketcher.Constraint("PointOnObject", 1, 3, -1),
    Sketcher.Constraint("Diameter", 0, Q("3.3 mm")),
    Sketcher.Constraint("DistanceX", -1, 1, 0, 3, Q("461 mm")),
    Sketcher.Constraint("DistanceX", -1, 1, 1, 3, Q("261 mm")),
])
doc.recompute()
hole5 = doc.addObject("PartDesign::Hole", "Hole004")
body.addObject(hole5)
hole5.Profile = sketch7
hole5.ThreadType = "None"
hole5.Diameter = 3.3
hole5.DepthType = "Dimension"
hole5.Depth = 10.1
hole5.DrillPoint = "Angled"
hole5.DrillPointAngle = 118

# Sketch on XZ plane
sketch8 = doc.addObject("Sketcher::SketchObject", "Sketch007")
body.addObject(sketch8)
sketch8.AttachmentSupport = (doc.XZ_Plane, [""])
sketch8.MapMode = "FlatFace"
sketch8.AttachmentOffset = App.Placement(Vector(0, 0, 15), App.Rotation())
sketch8.addGeometry([
    Part.Circle(Vector(571, 0, 0), Vector(0, 0, 1), 1.6),
    Part.Circle(Vector(496, 0, 0), Vector(0, 0, 1), 1.6),
], False)
sketch8.addConstraint([
    Sketcher.Constraint("Equal", 0, 1),
    Sketcher.Constraint("PointOnObject", 0, 3, -1),
    Sketcher.Constraint("PointOnObject", 1, 3, -1),
    Sketcher.Constraint("Diameter", 0, Q("3.3 mm")),
    Sketcher.Constraint("DistanceX", -1, 1, 0, 3, Q("571 mm")),
    Sketcher.Constraint("DistanceX", -1, 1, 1, 3, Q("496 mm")),
])
doc.recompute()
hole6 = doc.addObject("PartDesign::Hole", "Hole005")
body.addObject(hole6)
hole6.Profile = sketch8
hole6.ThreadType = "None"
hole6.Diameter = 3.3
hole6.DepthType = "Dimension"
hole6.Depth = 10.1
hole6.DrillPoint = "Angled"
hole6.DrillPointAngle = 118

# Sketch on XY plane
sketch9 = doc.addObject("Sketcher::SketchObject", "Sketch008")
body.addObject(sketch9)
sketch9.AttachmentSupport = (doc.XY_Plane, [""])
sketch9.MapMode = "FlatFace"
sketch9.AttachmentOffset = App.Placement(Vector(0, 0, -15), App.Rotation())
sketch9.addGeometry([
    Part.Circle(Vector(326, 0, 0), Vector(0, 0, 1), 2.5),
    Part.Circle(Vector(266, 0, 0), Vector(0, 0, 1), 2.5),
    Part.Circle(Vector(-296, 0, 0), Vector(0, 0, 1), 2.5),
    Part.Circle(Vector(-356, 0, 0), Vector(0, 0, 1), 2.5),
], False)
sketch9.addConstraint([
    Sketcher.Constraint("Equal", 0, 1),
    Sketcher.Constraint("Equal", 1, 2),
    Sketcher.Constraint("Equal", 2, 3),
    Sketcher.Constraint("PointOnObject", 0, 3, -1),
    Sketcher.Constraint("PointOnObject", 1, 3, -1),
    Sketcher.Constraint("PointOnObject", 2, 3, -1),
    Sketcher.Constraint("PointOnObject", 3, 3, -1),
    Sketcher.Constraint("Diameter", 0, Q("5 mm")),
    Sketcher.Constraint("DistanceX", -1, 1, 0, 3, Q("326 mm")),
    Sketcher.Constraint("DistanceX", -1, 1, 1, 3, Q("266 mm")),
    Sketcher.Constraint("DistanceX", 2, 3, -1, 1, Q("296 mm")),
    Sketcher.Constraint("DistanceX", 3, 3, -1, 1, Q("356 mm")),
])
doc.recompute()
hole7 = doc.addObject("PartDesign::Hole", "Hole006")
body.addObject(hole7)
hole7.Profile = sketch9
hole7.ThreadType = "None"
hole7.Diameter = 5
hole7.DepthType = "Dimension"
hole7.Depth = 15
hole7.DrillPoint = "Angled"
hole7.DrillPointAngle = 118
hole7.Reversed = True

doc.recompute()
